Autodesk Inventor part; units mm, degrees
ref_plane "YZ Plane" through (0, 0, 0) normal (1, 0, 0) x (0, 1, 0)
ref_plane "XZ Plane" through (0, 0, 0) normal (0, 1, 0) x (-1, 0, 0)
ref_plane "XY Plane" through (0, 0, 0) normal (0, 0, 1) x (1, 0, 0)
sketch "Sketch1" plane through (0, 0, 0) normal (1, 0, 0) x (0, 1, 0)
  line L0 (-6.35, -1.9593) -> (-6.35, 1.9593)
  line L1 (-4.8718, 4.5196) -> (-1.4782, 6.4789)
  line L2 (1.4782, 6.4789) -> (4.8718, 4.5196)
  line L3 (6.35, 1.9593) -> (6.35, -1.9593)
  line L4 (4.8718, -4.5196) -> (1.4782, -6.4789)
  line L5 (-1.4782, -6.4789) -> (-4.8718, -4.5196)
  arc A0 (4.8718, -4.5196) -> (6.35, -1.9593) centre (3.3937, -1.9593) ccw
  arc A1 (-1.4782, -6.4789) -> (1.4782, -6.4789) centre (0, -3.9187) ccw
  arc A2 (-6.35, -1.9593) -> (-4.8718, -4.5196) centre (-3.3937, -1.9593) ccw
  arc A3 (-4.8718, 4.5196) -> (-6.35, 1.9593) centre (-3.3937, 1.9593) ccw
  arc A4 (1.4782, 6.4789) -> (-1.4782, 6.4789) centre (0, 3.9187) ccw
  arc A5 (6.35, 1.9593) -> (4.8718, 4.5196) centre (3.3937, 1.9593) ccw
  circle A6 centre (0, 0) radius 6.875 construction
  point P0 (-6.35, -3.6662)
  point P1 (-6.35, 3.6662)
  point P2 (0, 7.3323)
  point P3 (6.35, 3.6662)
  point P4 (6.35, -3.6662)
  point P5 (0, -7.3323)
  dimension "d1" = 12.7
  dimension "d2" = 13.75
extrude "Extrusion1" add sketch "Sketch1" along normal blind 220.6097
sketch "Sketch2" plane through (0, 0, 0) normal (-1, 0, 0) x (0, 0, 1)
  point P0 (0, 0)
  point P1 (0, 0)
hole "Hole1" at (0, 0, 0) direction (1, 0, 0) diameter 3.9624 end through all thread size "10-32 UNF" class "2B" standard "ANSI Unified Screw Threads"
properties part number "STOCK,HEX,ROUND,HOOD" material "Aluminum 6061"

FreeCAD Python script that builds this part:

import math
import FreeCAD as App
import Part
import Sketcher
from FreeCAD import Vector
Q = App.Units.Quantity

doc = App.newDocument("Part")
body = doc.addObject("PartDesign::Body", "Body")

# Sketch on YZ plane
sketch1 = doc.addObject("Sketcher::SketchObject", "Sketch")
body.addObject(sketch1)
sketch1.AttachmentSupport = (doc.YZ_Plane, [""])
sketch1.MapMode = "FlatFace"
sketch1.addGeometry(Part.LineSegment(Vector(-6.3, 2, 0), Vector(-6.3, -2, 0)), False)
sketch1.addGeometry(Part.ArcOfCircle(Part.Circle(Vector(-3.4, -2, 0), Vector(0, 0, 1), 3), math.radians(180), math.radians(240)), False)
sketch1.addGeometry(Part.LineSegment(Vector(-4.9, -4.5, 0), Vector(-1.5, -6.5, 0)), False)
sketch1.addGeometry(Part.ArcOfCircle(Part.Circle(Vector(0, -3.9, 0), Vector(0, 0, 1), 3), math.radians(-120), math.radians(-60)), False)
sketch1.addGeometry(Part.LineSegment(Vector(1.5, -6.5, 0), Vector(4.9, -4.5, 0)), False)
sketch1.addGeometry(Part.ArcOfCircle(Part.Circle(Vector(3.4, -2, 0), Vector(0, 0, 1), 3), math.radians(-60), math.radians(0)), False)
sketch1.addGeometry(Part.LineSegment(Vector(6.3, -2, 0), Vector(6.3, 2, 0)), False)
sketch1.addGeometry(Part.ArcOfCircle(Part.Circle(Vector(3.4, 2, 0), Vector(0, 0, 1), 3), math.radians(0), math.radians(60)), False)
sketch1.addGeometry(Part.LineSegment(Vector(4.9, 4.5, 0), Vector(1.5, 6.5, 0)), False)
sketch1.addGeometry(Part.ArcOfCircle(Part.Circle(Vector(0, 3.9, 0), Vector(0, 0, 1), 3), math.radians(60), math.radians(120)), False)
sketch1.addGeometry(Part.LineSegment(Vector(-1.5, 6.5, 0), Vector(-4.9, 4.5, 0)), False)
sketch1.addGeometry(Part.ArcOfCircle(Part.Circle(Vector(-3.4, 2, 0), Vector(0, 0, 1), 3), math.radians(120), math.radians(180)), False)
sketch1.addConstraint(Sketcher.Constraint("Tangent", 0, 2, 1, 1))
sketch1.addConstraint(Sketcher.Constraint("Tangent", 1, 2, 2, 1))
sketch1.addConstraint(Sketcher.Constraint("Tangent", 2, 2, 3, 1))
sketch1.addConstraint(Sketcher.Constraint("Tangent", 3, 2, 4, 1))
sketch1.addConstraint(Sketcher.Constraint("Tangent", 4, 2, 5, 1))
sketch1.addConstraint(Sketcher.Constraint("Tangent", 5, 2, 6, 1))
sketch1.addConstraint(Sketcher.Constraint("Tangent", 6, 2, 7, 1))
sketch1.addConstraint(Sketcher.Constraint("Tangent", 7, 2, 8, 1))
sketch1.addConstraint(Sketcher.Constraint("Tangent", 8, 2, 9, 1))
sketch1.addConstraint(Sketcher.Constraint("Tangent", 9, 2, 10, 1))
sketch1.addConstraint(Sketcher.Constraint("Tangent", 10, 2, 11, 1))
sketch1.addConstraint(Sketcher.Constraint("Tangent", 11, 2, 0, 1))
sketch1.addConstraint(Sketcher.Constraint("Vertical", 0))
sketch1.addConstraint(Sketcher.Constraint("Vertical", 6))
sketch1.addConstraint(Sketcher.Constraint("Equal", 1, 3))
sketch1.addConstraint(Sketcher.Constraint("Equal", 3, 5))
sketch1.addConstraint(Sketcher.Constraint("Equal", 5, 7))
sketch1.addConstraint(Sketcher.Constraint("Equal", 7, 9))
sketch1.addConstraint(Sketcher.Constraint("Equal", 9, 11))
sketch1.addConstraint(Sketcher.Constraint("Symmetric", 1, 3, 7, 3, -1, 1))
sketch1.addConstraint(Sketcher.Constraint("Symmetric", 3, 3, 9, 3, -1, 1))
sketch1.addConstraint(Sketcher.Constraint("Symmetric", 2, 2, 3, 2, -2))
sketch1.addConstraint(Sketcher.Constraint("Parallel", 4, 10))
sketch1.addConstraint(Sketcher.Constraint("Angle", 2, Q("-30 deg")))
sketch1.addConstraint(Sketcher.Constraint("Radius", 1, Q("0.1164 in")))
sketch1.addConstraint(Sketcher.Constraint("DistanceX", 0, 2, -1, 1, Q("0.25 in")))
sketch1.addConstraint(Sketcher.Constraint("DistanceY", 0, 2, 0, 1, 3.9186))
pad1 = doc.addObject("PartDesign::Pad", "Pad")
body.addObject(pad1)
pad1.Profile = sketch1
pad1.Length = 220.6097

# Sketch on YZ plane
sketch2 = doc.addObject("Sketcher::SketchObject", "Sketch001")
body.addObject(sketch2)
sketch2.AttachmentSupport = (doc.YZ_Plane, [""])
sketch2.MapMode = "FlatFace"
sketch2.addGeometry(Part.Circle(Vector(0, 0, 0), Vector(0, 0, 1), 2), False)
sketch2.addConstraint(Sketcher.Constraint("Coincident", 0, 3, -1, 1))
sketch2.addConstraint(Sketcher.Constraint("Diameter", 0, Q("0.156 in")))
doc.recompute()
hole = doc.addObject("PartDesign::Hole", "Hole")
body.addObject(hole)
hole.Profile = sketch2
hole.ThreadType = "None"
hole.Diameter = Q("0.156 in")
hole.DepthType = "ThroughAll"
hole.Reversed = True

doc.recompute()
